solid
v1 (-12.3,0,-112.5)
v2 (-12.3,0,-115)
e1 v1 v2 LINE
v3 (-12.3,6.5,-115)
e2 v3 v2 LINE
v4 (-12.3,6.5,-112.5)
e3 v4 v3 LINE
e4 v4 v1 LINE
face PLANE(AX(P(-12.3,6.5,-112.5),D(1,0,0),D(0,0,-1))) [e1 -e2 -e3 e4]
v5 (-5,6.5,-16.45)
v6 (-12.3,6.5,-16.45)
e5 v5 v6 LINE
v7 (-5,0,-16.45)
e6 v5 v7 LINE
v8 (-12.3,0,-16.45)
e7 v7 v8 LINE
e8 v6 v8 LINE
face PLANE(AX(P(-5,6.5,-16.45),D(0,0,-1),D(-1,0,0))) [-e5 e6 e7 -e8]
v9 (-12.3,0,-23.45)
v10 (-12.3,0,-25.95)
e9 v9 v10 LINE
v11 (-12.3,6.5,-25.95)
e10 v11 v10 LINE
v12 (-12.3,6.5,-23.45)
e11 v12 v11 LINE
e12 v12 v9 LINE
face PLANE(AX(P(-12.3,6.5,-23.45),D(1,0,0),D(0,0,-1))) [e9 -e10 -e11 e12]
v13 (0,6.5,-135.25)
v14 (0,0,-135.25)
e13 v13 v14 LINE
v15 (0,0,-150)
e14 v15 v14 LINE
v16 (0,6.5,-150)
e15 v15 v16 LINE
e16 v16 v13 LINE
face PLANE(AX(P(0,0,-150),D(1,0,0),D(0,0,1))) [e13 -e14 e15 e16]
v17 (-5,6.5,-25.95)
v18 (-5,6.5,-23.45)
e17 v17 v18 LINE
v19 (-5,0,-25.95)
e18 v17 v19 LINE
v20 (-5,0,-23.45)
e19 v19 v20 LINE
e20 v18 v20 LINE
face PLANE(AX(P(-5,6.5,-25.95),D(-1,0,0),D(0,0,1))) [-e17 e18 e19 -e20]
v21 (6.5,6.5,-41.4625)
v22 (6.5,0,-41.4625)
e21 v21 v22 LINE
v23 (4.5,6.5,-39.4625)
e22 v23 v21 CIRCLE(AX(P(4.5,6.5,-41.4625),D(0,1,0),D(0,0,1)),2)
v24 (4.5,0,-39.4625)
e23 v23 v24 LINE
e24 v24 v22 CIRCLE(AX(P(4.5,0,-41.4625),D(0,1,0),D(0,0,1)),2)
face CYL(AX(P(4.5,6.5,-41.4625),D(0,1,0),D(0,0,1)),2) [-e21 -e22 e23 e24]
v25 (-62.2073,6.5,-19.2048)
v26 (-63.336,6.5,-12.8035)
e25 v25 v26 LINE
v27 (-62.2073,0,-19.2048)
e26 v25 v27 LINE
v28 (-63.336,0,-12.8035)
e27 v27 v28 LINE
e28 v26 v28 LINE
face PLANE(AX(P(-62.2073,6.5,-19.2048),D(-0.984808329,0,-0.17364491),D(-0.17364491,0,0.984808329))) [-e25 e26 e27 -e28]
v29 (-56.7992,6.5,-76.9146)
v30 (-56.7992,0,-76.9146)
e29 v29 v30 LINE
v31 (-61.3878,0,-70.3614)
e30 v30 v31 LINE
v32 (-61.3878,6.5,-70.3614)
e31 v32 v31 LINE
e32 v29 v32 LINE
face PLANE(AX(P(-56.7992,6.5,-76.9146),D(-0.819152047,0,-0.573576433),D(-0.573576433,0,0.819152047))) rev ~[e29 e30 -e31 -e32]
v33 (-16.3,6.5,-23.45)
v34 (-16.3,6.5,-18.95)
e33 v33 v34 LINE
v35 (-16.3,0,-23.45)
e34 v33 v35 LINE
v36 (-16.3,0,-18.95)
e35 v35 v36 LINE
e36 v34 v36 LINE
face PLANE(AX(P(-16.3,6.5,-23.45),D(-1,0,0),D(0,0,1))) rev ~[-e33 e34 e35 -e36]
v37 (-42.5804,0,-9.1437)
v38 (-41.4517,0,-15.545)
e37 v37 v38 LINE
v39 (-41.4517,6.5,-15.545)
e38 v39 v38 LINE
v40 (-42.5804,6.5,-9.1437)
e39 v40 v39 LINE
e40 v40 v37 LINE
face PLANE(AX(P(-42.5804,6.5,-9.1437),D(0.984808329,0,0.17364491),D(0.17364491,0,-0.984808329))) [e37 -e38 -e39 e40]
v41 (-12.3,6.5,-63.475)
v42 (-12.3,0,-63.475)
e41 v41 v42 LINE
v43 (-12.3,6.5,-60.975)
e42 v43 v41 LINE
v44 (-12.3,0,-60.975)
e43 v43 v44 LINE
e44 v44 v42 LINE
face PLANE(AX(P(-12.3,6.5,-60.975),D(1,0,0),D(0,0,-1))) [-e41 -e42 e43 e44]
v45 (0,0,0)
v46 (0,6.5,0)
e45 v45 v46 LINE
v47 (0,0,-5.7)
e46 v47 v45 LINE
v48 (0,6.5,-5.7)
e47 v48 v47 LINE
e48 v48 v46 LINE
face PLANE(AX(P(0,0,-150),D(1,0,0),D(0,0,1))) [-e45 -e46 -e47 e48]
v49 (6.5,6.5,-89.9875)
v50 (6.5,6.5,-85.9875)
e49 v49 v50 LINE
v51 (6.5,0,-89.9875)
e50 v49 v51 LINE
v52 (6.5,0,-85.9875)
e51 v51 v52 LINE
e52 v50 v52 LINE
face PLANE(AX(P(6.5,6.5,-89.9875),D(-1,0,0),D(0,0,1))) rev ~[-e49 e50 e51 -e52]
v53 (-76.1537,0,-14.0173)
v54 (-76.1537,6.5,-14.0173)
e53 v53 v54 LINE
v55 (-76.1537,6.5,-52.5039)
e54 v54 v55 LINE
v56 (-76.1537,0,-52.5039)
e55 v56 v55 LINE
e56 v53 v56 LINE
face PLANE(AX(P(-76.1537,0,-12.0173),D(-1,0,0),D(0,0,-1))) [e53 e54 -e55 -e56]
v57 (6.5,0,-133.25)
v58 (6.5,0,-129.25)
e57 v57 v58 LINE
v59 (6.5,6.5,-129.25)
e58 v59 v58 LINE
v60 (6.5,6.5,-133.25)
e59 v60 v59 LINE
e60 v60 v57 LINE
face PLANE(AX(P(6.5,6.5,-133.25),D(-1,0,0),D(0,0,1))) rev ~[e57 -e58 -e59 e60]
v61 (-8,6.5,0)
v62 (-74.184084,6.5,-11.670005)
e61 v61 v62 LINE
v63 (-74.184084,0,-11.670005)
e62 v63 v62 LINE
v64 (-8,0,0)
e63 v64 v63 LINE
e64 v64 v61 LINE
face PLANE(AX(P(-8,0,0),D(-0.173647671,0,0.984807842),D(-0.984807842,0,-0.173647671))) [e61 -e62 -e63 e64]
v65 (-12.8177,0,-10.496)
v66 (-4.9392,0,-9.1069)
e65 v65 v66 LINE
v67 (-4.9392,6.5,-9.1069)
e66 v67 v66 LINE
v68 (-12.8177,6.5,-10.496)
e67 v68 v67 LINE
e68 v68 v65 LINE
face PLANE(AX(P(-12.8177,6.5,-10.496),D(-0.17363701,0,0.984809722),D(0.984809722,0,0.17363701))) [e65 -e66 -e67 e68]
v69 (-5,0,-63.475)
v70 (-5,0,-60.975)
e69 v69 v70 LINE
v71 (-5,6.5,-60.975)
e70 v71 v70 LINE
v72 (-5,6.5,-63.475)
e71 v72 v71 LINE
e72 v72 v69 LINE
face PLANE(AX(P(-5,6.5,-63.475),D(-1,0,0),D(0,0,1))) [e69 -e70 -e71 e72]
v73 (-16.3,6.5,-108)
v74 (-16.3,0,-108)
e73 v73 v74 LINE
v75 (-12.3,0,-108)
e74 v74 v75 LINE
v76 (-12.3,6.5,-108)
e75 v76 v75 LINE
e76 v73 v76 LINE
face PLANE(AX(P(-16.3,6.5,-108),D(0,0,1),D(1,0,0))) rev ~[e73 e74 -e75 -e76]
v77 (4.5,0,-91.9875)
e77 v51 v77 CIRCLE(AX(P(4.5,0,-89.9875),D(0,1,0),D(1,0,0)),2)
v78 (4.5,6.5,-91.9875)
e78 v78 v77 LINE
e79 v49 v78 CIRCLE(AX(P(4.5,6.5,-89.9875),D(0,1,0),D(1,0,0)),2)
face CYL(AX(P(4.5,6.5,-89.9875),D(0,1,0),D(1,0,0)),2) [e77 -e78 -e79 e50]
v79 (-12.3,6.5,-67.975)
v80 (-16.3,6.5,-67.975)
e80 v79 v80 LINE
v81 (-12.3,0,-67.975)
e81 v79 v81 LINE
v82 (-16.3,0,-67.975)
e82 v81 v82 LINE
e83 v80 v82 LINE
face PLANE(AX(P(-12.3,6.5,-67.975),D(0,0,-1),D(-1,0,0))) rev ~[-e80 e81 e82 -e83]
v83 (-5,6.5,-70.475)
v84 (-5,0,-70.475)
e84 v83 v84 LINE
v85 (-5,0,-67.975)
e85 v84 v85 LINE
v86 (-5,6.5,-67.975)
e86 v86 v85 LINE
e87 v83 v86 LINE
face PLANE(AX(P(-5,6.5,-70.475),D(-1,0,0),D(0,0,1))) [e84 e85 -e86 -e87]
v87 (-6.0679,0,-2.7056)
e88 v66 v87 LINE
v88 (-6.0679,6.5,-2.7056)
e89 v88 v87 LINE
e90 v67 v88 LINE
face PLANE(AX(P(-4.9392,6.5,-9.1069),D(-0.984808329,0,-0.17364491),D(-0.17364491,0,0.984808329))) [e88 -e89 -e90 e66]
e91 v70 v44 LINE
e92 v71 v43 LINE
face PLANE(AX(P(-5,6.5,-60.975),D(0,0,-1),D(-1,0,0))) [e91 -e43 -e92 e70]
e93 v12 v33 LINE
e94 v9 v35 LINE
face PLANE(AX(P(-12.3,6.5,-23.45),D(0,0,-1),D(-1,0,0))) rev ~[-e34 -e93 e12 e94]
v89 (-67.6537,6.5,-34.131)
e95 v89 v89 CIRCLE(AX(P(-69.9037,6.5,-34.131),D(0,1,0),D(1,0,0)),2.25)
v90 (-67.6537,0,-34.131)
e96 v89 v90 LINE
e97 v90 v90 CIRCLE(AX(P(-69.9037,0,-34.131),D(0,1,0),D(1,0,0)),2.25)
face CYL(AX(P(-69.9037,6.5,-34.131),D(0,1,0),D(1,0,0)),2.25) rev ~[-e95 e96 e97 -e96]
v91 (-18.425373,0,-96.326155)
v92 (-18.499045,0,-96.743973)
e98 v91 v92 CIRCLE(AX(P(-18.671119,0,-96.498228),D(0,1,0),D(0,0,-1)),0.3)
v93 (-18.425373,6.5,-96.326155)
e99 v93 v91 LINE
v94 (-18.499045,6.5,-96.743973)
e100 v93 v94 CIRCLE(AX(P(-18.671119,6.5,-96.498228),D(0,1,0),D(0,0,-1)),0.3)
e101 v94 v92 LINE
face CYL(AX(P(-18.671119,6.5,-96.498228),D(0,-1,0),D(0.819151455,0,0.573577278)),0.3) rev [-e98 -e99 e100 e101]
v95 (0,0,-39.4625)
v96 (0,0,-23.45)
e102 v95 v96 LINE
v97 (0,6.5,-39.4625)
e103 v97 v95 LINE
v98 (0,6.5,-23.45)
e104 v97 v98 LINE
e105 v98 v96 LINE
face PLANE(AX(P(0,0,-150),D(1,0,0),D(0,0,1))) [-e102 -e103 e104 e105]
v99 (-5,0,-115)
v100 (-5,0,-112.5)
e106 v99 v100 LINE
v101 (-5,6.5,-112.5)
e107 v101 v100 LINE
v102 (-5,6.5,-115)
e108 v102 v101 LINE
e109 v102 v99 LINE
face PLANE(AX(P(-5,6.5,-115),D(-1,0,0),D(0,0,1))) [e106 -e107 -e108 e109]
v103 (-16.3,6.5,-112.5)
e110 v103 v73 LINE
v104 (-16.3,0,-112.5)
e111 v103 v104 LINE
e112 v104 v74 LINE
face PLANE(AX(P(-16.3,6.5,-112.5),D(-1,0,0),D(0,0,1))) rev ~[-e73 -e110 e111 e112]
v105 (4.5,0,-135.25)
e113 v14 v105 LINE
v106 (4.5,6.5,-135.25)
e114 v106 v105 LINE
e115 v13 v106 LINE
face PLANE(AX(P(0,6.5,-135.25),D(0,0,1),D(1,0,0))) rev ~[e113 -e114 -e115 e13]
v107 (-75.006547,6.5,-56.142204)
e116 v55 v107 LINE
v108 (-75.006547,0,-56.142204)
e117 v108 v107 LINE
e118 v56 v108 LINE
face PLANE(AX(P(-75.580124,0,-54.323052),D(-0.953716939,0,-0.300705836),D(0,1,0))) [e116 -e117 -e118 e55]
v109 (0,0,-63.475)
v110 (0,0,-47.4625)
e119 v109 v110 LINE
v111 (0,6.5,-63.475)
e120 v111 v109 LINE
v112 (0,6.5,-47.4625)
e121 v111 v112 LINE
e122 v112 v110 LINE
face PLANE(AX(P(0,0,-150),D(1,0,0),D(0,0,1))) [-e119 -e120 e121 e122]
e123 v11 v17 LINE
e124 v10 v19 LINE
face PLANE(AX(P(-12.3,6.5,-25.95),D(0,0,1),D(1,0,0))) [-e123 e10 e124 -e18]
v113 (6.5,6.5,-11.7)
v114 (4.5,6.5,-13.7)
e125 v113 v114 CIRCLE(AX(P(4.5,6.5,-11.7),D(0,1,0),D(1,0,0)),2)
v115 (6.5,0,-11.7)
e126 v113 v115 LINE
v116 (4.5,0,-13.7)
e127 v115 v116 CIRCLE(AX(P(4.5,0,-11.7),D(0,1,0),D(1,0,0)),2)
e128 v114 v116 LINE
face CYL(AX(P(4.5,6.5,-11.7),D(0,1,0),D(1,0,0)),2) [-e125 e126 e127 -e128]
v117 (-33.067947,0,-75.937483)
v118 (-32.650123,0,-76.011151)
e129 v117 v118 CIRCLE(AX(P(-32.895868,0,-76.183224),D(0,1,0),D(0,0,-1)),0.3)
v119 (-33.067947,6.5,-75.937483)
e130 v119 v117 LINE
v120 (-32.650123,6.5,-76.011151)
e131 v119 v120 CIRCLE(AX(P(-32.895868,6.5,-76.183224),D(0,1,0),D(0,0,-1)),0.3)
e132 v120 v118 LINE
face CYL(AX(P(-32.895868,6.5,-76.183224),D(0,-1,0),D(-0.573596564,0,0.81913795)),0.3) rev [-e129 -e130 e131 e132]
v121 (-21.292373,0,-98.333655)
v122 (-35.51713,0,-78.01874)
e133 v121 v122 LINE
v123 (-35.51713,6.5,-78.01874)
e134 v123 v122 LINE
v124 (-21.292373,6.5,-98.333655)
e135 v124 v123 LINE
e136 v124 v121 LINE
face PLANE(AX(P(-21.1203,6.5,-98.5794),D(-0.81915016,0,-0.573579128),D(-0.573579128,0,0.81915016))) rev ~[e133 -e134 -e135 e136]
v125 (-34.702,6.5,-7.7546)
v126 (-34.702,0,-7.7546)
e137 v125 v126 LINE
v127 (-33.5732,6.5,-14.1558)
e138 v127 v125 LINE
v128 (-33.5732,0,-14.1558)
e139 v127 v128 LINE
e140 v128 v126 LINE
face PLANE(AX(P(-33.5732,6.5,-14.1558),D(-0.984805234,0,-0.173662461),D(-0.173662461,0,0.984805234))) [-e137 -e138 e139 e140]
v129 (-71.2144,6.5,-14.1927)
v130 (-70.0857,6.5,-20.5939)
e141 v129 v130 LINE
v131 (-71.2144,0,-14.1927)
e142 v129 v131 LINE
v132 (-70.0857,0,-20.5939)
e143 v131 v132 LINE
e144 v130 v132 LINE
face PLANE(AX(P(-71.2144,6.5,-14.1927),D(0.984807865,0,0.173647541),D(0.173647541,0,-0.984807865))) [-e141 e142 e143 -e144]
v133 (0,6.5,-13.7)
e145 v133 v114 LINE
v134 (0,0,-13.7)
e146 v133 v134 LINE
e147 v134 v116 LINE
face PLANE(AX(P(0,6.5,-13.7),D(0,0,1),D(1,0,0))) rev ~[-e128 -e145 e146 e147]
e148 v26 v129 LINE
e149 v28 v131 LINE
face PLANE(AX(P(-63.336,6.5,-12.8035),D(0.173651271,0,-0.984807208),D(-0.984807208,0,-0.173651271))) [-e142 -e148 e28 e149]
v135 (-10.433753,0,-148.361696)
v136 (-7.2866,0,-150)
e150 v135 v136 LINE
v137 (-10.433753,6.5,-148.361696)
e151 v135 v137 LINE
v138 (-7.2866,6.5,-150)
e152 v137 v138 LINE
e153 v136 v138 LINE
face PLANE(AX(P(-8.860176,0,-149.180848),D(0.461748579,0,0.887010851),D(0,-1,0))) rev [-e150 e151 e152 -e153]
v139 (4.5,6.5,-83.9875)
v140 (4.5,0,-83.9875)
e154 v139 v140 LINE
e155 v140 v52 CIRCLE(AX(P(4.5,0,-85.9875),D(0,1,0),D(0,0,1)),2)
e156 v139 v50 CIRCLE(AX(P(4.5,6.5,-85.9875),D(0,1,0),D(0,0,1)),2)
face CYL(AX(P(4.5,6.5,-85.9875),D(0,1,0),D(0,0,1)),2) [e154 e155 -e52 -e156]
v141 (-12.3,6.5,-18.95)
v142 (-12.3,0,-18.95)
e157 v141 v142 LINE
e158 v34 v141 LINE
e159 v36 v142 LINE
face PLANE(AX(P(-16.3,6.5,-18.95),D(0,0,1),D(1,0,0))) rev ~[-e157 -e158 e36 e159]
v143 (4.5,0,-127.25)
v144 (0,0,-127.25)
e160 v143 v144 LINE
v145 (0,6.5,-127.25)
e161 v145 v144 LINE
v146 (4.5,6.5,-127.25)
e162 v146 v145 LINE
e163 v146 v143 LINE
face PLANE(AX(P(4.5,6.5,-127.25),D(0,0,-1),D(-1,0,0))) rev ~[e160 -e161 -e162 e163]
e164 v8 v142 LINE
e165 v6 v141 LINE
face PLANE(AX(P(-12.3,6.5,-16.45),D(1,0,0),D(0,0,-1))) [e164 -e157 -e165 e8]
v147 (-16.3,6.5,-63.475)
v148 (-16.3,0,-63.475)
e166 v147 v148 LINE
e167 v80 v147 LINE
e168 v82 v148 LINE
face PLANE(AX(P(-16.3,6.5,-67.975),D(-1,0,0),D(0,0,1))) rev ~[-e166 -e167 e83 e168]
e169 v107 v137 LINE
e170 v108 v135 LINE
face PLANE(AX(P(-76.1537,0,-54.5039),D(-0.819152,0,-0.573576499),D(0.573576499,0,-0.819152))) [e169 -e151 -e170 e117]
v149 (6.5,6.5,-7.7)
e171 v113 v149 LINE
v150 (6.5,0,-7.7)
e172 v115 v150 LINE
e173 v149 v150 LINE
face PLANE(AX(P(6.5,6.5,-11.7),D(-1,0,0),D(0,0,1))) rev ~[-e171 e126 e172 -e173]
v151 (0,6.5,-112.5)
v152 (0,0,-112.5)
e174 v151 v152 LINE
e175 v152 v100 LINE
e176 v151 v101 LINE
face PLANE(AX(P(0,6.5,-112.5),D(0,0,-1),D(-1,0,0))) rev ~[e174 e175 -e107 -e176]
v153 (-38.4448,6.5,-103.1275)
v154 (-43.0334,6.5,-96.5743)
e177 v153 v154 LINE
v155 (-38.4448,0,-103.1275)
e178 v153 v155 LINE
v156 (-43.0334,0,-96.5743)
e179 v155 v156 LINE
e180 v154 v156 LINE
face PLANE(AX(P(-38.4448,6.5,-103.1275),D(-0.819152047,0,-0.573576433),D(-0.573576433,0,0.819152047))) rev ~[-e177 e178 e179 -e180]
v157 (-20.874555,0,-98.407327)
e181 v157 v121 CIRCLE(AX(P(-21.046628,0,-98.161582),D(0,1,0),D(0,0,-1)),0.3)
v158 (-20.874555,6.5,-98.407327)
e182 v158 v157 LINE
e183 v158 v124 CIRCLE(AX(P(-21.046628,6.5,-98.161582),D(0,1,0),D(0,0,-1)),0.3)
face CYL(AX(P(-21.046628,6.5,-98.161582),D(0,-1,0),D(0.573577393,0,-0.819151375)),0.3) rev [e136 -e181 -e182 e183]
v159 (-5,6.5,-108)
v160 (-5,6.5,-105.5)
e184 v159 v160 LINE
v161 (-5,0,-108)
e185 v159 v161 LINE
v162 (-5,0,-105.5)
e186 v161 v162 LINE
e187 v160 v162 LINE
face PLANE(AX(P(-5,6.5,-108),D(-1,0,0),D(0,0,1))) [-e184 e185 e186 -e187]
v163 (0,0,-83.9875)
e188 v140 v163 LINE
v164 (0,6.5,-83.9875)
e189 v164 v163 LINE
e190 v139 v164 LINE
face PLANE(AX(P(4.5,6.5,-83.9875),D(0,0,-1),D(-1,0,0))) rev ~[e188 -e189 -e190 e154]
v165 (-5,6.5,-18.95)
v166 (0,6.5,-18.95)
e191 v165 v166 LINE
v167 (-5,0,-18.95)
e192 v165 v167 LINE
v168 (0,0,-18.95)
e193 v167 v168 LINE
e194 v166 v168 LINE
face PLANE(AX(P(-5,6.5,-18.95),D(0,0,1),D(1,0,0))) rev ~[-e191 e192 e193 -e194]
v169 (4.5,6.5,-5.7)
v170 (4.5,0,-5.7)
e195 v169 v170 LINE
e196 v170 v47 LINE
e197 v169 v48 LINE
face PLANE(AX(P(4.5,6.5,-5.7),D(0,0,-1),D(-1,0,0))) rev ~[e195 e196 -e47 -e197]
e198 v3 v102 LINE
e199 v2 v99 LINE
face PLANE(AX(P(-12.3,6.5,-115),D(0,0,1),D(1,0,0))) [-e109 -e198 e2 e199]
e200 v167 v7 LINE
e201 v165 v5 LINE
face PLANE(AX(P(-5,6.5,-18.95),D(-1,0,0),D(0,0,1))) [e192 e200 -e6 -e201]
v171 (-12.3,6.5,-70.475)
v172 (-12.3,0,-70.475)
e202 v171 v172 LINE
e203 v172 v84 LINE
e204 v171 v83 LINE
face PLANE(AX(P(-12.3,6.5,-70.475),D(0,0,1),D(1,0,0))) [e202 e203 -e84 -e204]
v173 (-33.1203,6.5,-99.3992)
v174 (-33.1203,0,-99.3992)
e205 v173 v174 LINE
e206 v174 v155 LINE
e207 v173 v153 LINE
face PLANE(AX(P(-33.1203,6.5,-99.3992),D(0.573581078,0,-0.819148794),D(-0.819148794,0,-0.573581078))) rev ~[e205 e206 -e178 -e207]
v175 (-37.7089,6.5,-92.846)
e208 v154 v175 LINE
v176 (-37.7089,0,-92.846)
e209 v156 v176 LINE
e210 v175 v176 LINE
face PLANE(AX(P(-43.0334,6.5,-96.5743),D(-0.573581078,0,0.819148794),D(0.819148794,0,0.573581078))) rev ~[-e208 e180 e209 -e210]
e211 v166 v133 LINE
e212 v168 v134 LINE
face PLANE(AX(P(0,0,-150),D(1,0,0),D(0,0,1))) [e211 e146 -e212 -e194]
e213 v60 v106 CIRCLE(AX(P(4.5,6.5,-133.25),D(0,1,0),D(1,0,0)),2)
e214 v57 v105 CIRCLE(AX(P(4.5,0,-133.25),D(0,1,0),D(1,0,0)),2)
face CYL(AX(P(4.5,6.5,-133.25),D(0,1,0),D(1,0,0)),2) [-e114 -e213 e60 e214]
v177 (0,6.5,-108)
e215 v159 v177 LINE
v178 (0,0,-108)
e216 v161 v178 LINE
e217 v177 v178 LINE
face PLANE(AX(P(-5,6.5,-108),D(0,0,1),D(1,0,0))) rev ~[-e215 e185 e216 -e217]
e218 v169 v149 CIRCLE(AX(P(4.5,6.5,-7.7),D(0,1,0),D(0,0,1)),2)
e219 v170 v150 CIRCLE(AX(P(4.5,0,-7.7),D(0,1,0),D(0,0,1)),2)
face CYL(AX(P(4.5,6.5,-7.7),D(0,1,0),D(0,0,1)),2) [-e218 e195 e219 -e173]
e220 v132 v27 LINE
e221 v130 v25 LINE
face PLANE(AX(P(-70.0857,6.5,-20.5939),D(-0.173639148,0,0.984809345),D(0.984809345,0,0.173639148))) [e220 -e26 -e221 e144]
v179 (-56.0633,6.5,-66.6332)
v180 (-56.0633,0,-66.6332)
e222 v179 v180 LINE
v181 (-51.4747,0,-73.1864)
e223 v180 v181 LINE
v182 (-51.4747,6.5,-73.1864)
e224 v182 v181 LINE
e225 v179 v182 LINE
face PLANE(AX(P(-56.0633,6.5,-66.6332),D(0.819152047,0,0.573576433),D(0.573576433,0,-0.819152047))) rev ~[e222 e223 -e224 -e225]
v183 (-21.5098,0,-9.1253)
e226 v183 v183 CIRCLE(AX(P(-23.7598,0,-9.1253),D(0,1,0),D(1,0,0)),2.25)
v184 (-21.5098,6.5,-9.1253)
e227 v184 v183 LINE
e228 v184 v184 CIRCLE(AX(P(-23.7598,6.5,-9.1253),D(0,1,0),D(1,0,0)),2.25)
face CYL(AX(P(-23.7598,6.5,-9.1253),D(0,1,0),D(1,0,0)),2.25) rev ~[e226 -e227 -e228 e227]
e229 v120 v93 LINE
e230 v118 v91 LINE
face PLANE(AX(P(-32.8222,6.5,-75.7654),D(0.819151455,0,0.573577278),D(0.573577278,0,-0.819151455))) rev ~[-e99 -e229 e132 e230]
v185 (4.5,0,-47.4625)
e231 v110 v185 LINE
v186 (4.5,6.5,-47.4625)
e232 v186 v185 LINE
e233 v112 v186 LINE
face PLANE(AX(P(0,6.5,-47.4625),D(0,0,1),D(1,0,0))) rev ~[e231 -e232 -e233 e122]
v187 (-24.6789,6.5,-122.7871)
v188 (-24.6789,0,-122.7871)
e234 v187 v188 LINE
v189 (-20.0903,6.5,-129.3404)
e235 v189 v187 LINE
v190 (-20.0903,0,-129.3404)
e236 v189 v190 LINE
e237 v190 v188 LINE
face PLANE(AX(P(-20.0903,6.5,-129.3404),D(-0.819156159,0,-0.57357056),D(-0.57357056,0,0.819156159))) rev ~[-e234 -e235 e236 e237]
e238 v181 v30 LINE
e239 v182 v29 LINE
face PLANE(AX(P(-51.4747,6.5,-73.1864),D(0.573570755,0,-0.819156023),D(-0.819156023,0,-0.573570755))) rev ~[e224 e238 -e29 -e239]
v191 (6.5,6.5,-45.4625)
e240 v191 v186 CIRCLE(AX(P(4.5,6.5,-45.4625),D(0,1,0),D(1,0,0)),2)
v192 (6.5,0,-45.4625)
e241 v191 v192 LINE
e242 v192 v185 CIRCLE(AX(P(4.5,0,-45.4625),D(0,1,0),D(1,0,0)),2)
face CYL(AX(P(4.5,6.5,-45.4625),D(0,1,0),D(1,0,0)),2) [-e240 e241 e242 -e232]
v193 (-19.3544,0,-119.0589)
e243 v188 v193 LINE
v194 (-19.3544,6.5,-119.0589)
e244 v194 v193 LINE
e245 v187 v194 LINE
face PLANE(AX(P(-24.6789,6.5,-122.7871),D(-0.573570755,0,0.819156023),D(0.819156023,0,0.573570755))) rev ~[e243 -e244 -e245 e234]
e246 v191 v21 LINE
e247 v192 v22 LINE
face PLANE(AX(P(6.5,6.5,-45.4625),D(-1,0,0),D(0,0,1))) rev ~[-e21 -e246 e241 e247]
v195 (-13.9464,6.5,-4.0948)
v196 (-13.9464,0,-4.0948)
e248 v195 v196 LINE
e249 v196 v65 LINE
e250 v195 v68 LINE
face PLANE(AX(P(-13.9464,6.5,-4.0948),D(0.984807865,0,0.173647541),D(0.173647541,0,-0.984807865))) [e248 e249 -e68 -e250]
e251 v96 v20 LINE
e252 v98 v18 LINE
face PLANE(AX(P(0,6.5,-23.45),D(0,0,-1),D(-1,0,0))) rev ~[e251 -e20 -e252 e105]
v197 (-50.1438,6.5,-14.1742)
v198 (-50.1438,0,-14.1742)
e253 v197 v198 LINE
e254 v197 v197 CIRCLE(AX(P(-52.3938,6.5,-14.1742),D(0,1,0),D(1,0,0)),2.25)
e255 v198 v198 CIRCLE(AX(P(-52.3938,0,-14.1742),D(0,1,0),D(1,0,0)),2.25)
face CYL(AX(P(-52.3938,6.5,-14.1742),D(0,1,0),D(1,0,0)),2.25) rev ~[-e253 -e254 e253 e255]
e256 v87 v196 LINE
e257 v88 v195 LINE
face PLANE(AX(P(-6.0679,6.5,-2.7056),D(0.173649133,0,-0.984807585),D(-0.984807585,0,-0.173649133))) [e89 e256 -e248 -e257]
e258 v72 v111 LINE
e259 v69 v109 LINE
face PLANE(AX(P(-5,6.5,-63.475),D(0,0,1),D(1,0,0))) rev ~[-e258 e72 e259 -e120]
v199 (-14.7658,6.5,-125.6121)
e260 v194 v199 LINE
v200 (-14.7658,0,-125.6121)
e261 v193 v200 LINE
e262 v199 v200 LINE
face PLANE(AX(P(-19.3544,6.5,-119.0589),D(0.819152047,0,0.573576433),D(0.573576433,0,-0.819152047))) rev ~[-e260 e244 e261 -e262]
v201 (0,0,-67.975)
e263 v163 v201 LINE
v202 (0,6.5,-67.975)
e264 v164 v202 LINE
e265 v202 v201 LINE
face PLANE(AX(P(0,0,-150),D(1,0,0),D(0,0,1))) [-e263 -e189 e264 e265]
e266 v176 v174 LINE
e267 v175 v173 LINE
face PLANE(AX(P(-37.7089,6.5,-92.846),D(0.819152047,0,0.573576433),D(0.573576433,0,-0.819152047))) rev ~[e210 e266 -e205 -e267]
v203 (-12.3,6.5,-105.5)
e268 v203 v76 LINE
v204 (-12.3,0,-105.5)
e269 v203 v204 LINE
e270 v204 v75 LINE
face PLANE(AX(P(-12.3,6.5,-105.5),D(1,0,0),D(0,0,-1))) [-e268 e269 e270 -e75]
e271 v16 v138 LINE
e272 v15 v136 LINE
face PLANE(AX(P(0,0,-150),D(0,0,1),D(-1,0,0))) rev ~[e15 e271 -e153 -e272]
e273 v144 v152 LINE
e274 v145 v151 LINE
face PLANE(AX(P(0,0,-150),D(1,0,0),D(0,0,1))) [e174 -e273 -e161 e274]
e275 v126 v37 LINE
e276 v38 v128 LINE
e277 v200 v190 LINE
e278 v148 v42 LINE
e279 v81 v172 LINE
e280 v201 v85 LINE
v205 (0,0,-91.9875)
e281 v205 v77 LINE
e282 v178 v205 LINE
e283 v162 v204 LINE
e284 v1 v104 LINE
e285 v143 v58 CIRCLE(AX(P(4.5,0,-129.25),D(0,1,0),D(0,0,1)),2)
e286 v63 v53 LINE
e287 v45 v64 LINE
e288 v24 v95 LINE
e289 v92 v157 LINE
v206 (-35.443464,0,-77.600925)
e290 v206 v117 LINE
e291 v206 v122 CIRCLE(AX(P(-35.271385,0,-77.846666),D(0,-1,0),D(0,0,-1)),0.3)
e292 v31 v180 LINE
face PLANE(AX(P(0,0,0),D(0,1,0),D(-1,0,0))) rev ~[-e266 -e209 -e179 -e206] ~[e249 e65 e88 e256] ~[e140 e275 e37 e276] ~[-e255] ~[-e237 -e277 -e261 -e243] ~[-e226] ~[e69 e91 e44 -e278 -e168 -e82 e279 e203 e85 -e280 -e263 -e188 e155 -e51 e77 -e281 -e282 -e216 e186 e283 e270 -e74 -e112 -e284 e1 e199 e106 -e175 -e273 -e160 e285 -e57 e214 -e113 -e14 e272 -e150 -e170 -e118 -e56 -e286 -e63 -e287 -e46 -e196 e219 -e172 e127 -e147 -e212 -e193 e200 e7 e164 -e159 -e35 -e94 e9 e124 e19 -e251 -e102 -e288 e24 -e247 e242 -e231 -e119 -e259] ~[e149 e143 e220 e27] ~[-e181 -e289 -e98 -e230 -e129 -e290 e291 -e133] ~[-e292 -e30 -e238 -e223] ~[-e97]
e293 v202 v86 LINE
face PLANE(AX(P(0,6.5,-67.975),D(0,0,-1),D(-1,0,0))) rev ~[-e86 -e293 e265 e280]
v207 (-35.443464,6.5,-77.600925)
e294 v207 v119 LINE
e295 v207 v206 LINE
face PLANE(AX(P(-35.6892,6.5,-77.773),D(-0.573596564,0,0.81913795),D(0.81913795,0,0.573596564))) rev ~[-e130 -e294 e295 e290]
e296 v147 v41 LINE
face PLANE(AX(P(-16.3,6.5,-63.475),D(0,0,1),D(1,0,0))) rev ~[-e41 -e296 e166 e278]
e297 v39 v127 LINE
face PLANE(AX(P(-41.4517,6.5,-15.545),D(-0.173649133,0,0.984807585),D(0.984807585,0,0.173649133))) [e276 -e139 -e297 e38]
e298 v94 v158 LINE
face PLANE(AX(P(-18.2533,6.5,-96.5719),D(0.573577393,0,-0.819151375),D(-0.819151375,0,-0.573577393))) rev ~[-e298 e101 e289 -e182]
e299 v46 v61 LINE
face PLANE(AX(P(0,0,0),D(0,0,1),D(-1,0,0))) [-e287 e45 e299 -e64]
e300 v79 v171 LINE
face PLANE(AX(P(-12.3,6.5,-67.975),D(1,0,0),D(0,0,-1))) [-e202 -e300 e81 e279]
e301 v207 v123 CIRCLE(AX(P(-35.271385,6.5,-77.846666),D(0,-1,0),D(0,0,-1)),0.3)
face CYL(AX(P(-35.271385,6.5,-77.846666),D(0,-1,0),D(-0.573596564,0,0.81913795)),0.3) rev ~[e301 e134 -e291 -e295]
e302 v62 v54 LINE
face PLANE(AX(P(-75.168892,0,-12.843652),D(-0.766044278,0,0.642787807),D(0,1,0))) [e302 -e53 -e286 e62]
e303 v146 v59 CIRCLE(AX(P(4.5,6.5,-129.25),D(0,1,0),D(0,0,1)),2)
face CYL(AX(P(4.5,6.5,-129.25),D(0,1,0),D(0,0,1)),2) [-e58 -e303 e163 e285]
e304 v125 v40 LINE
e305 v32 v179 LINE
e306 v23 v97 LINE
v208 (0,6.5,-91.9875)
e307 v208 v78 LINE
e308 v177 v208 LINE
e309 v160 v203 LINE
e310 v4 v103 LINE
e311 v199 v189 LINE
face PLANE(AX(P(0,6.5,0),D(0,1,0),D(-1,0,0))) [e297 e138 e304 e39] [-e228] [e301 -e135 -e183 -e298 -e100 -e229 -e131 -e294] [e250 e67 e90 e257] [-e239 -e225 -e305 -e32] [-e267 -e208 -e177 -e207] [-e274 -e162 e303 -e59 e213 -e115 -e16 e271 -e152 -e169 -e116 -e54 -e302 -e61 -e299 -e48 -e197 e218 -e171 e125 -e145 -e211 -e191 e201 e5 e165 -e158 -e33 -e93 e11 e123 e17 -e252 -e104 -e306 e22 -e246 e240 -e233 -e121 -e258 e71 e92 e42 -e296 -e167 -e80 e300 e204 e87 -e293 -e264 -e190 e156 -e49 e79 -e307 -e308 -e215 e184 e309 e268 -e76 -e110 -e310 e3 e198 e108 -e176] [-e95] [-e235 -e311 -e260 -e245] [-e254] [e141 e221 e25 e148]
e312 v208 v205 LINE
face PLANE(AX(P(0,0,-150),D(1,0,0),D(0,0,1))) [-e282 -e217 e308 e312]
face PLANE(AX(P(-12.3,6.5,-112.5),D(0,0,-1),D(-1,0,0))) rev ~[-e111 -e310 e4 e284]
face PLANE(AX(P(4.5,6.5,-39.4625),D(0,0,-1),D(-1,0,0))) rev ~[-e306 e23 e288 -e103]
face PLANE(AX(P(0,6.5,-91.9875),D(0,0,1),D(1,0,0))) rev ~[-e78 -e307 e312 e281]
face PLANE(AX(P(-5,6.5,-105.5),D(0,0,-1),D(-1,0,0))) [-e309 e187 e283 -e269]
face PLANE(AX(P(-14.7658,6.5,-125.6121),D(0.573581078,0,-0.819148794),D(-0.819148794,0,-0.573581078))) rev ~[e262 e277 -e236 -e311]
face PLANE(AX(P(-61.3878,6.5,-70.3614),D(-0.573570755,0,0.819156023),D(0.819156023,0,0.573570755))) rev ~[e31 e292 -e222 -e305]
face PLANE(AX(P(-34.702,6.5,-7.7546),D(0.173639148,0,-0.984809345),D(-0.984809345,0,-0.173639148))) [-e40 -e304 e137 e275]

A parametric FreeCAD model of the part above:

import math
import FreeCAD as App
import Part
import Sketcher
from FreeCAD import Vector
Q = App.Units.Quantity


def edges_at(feature, points):
    """Names of the edges that pass closest to the given points."""
    edges = feature.Shape.Edges
    near = lambda p: min(range(len(edges)), key=lambda i: edges[i].distToShape(Part.Vertex(*p))[0])
    return sorted({f"Edge{near(p) + 1}" for p in points})

doc = App.newDocument("Part")
params = doc.addObject("Spreadsheet::Sheet", "Params")
for row, (alias, value) in enumerate([
    ("sketch1_width", "8 mm"),
    ("sketch1_height", "150 mm"),
    ("pad1_length", "6.5 mm"),
    ("chamfer_size", "2 mm"),
    ("sketch2_diameter", "4.5 mm"),
    ("sketch2_width", "5 mm"),
    ("sketch2_width2", "4 mm"),
    ("sketch2_length", "8 mm"),
    ("sketch2_width3", "7.3 mm"),
    ("sketch3_radius", "2 mm"),
    ("sketch3_height", "8 mm"),
    ("pad2_length", "6.5 mm"),
    ("sketch4_length", "3.5 mm"),
    ("sketch4_length2", "25.4 mm"),
    ("fillet_radius", "0.3 mm"),
], start=1):
    params.set(f"A{row}", alias)
    params.set(f"B{row}", "=" + value)
    params.setAlias(f"B{row}", alias)

body = doc.addObject("PartDesign::Body", "Body")

sketch1 = body.newObject("Sketcher::SketchObject", "Sketch")
sketch1.AttachmentSupport = (doc.getObject("XZ_Plane"), [""])
sketch1.MapMode = "FlatFace"
sketch1.addGeometry([
    Part.LineSegment(Vector(-76.1537, -12.0173, 0), Vector(-8, 0, 0)),
    Part.LineSegment(Vector(-8, 0, 0), Vector(0, 0, 0)),
    Part.LineSegment(Vector(0, 0, 0), Vector(0, -150, 0)),
    Part.LineSegment(Vector(0, -150, 0), Vector(-9.2866, -150, 0)),
    Part.LineSegment(Vector(-9.2866, -150, 0), Vector(-76.1537, -54.5039, 0)),
    Part.LineSegment(Vector(-76.1537, -54.5039, 0), Vector(-76.1537, -12.0173, 0)),
], False)
sketch1.addConstraint([
    Sketcher.Constraint("Coincident", 0, 2, 1, 1),
    Sketcher.Constraint("Coincident", 1, 2, 2, 1),
    Sketcher.Constraint("Coincident", 2, 2, 3, 1),
    Sketcher.Constraint("Coincident", 3, 2, 4, 1),
    Sketcher.Constraint("Coincident", 4, 2, 5, 1),
    Sketcher.Constraint("Coincident", 5, 2, 0, 1),
    Sketcher.Constraint("Horizontal", 1),
    Sketcher.Constraint("Vertical", 2),
    Sketcher.Constraint("Horizontal", 3),
    Sketcher.Constraint("Vertical", 5),
    Sketcher.Constraint("Coincident", 1, 2, -1, 1),
    Sketcher.Constraint("DistanceX", 1, 1, 1, 2, 8.0),
    Sketcher.Constraint("DistanceY", 2, 2, 2, 1, 150.0),
    Sketcher.Constraint("Angle", 0, Q("10 deg")),
    Sketcher.Constraint("Angle", 4, Q("125 deg")),
    Sketcher.Constraint("Distance", 0, 69.205),
    Sketcher.Constraint("DistanceX", 3, 2, 3, 1, 9.2866),
])
sketch1.setExpression("Constraints[11]", "Params.sketch1_width")
sketch1.setExpression("Constraints[12]", "Params.sketch1_height")
pad1 = body.newObject("PartDesign::Pad", "Pad")
pad1.Profile = sketch1
pad1.setExpression("Length", "Params.pad1_length")
pad1.Reversed = True
doc.recompute()

chamfer = body.newObject("PartDesign::Chamfer", "Chamfer")
chamfer.Base = (pad1, edges_at(pad1, [(-76.154, 3.25, -54.504), (-76.154, 3.25, -12.017), (-9.287, 3.25, -150)]))
chamfer.setExpression("Size", "Params.chamfer_size")

sketch2 = body.newObject("Sketcher::SketchObject", "Sketch001")
sketch2.AttachmentSupport = (doc.getObject("XZ_Plane"), [""])
sketch2.MapMode = "FlatFace"
sketch2.AttachmentOffset = App.Placement(Vector(0, 0, -6.5), App.Rotation())
sketch2.addGeometry([
    Part.LineSegment(Vector(-5, -18.95, 0), Vector(0, -18.95, 0)),
    Part.LineSegment(Vector(0, -18.95, 0), Vector(0, -23.45, 0)),
    Part.LineSegment(Vector(0, -23.45, 0), Vector(-5, -23.45, 0)),
    Part.LineSegment(Vector(-5, -23.45, 0), Vector(-5, -25.95, 0)),
    Part.LineSegment(Vector(-5, -25.95, 0), Vector(-12.3, -25.95, 0)),
    Part.LineSegment(Vector(-12.3, -25.95, 0), Vector(-12.3, -23.45, 0)),
    Part.LineSegment(Vector(-12.3, -23.45, 0), Vector(-16.3, -23.45, 0)),
    Part.LineSegment(Vector(-16.3, -23.45, 0), Vector(-16.3, -18.95, 0)),
    Part.LineSegment(Vector(-16.3, -18.95, 0), Vector(-12.3, -18.95, 0)),
    Part.LineSegment(Vector(-12.3, -18.95, 0), Vector(-12.3, -16.45, 0)),
    Part.LineSegment(Vector(-12.3, -16.45, 0), Vector(-5, -16.45, 0)),
    Part.LineSegment(Vector(-5, -16.45, 0), Vector(-5, -18.95, 0)),
    Part.LineSegment(Vector(-5, -108, 0), Vector(0, -108, 0)),
    Part.LineSegment(Vector(0, -108, 0), Vector(0, -112.5, 0)),
    Part.LineSegment(Vector(0, -112.5, 0), Vector(-5, -112.5, 0)),
    Part.LineSegment(Vector(-5, -112.5, 0), Vector(-5, -115, 0)),
    Part.LineSegment(Vector(-5, -115, 0), Vector(-12.3, -115, 0)),
    Part.LineSegment(Vector(-12.3, -115, 0), Vector(-12.3, -112.5, 0)),
    Part.LineSegment(Vector(-12.3, -112.5, 0), Vector(-16.3, -112.5, 0)),
    Part.LineSegment(Vector(-16.3, -112.5, 0), Vector(-16.3, -108, 0)),
    Part.LineSegment(Vector(-16.3, -108, 0), Vector(-12.3, -108, 0)),
    Part.LineSegment(Vector(-12.3, -108, 0), Vector(-12.3, -105.5, 0)),
    Part.LineSegment(Vector(-12.3, -105.5, 0), Vector(-5, -105.5, 0)),
    Part.LineSegment(Vector(-5, -105.5, 0), Vector(-5, -108, 0)),
    Part.LineSegment(Vector(-5, -63.475, 0), Vector(0, -63.475, 0)),
    Part.LineSegment(Vector(0, -63.475, 0), Vector(0, -67.975, 0)),
    Part.LineSegment(Vector(0, -67.975, 0), Vector(-5, -67.975, 0)),
    Part.LineSegment(Vector(-5, -67.975, 0), Vector(-5, -70.475, 0)),
    Part.LineSegment(Vector(-5, -70.475, 0), Vector(-12.3, -70.475, 0)),
    Part.LineSegment(Vector(-12.3, -70.475, 0), Vector(-12.3, -67.975, 0)),
    Part.LineSegment(Vector(-12.3, -67.975, 0), Vector(-16.3, -67.975, 0)),
    Part.LineSegment(Vector(-16.3, -67.975, 0), Vector(-16.3, -63.475, 0)),
    Part.LineSegment(Vector(-16.3, -63.475, 0), Vector(-12.3, -63.475, 0)),
    Part.LineSegment(Vector(-12.3, -63.475, 0), Vector(-12.3, -60.975, 0)),
    Part.LineSegment(Vector(-12.3, -60.975, 0), Vector(-5, -60.975, 0)),
    Part.LineSegment(Vector(-5, -60.975, 0), Vector(-5, -63.475, 0)),
    Part.Circle(Vector(-69.9037, -34.131, 0), Vector(0, 0, 1), 2.25),
    Part.LineSegment(Vector(-61.3878, -70.3614, 0), Vector(-56.0633, -66.6332, 0)),
    Part.LineSegment(Vector(-56.0633, -66.6332, 0), Vector(-51.4747, -73.1864, 0)),
    Part.LineSegment(Vector(-51.4747, -73.1864, 0), Vector(-56.7992, -76.9146, 0)),
    Part.LineSegment(Vector(-56.7992, -76.9146, 0), Vector(-61.3878, -70.3614, 0)),
    Part.LineSegment(Vector(-43.0334, -96.5743, 0), Vector(-37.7089, -92.846, 0)),
    Part.LineSegment(Vector(-37.7089, -92.846, 0), Vector(-33.1203, -99.3992, 0)),
    Part.LineSegment(Vector(-33.1203, -99.3992, 0), Vector(-38.4448, -103.1275, 0)),
    Part.LineSegment(Vector(-38.4448, -103.1275, 0), Vector(-43.0334, -96.5743, 0)),
    Part.LineSegment(Vector(-24.6789, -122.7871, 0), Vector(-19.3544, -119.0589, 0)),
    Part.LineSegment(Vector(-19.3544, -119.0589, 0), Vector(-14.7658, -125.6121, 0)),
    Part.LineSegment(Vector(-14.7658, -125.6121, 0), Vector(-20.0903, -129.3404, 0)),
    Part.LineSegment(Vector(-20.0903, -129.3404, 0), Vector(-24.6789, -122.7871, 0)),
    Part.LineSegment(Vector(-62.2073, -19.2048, 0), Vector(-70.0857, -20.5939, 0)),
    Part.LineSegment(Vector(-70.0857, -20.5939, 0), Vector(-71.2144, -14.1927, 0)),
    Part.LineSegment(Vector(-71.2144, -14.1927, 0), Vector(-63.336, -12.8035, 0)),
    Part.LineSegment(Vector(-63.336, -12.8035, 0), Vector(-62.2073, -19.2048, 0)),
    Part.LineSegment(Vector(-33.5732, -14.1558, 0), Vector(-41.4517, -15.545, 0)),
    Part.LineSegment(Vector(-41.4517, -15.545, 0), Vector(-42.5804, -9.1437, 0)),
    Part.LineSegment(Vector(-42.5804, -9.1437, 0), Vector(-34.702, -7.7546, 0)),
    Part.LineSegment(Vector(-34.702, -7.7546, 0), Vector(-33.5732, -14.1558, 0)),
    Part.LineSegment(Vector(-4.9392, -9.1069, 0), Vector(-12.8177, -10.496, 0)),
    Part.LineSegment(Vector(-12.8177, -10.496, 0), Vector(-13.9464, -4.0948, 0)),
    Part.LineSegment(Vector(-13.9464, -4.0948, 0), Vector(-6.0679, -2.7056, 0)),
    Part.LineSegment(Vector(-6.0679, -2.7056, 0), Vector(-4.9392, -9.1069, 0)),
    Part.Circle(Vector(-52.3938, -14.1742, 0), Vector(0, 0, 1), 2.25),
    Part.Circle(Vector(-23.7598, -9.1253, 0), Vector(0, 0, 1), 2.25),
], False)
sketch2.addConstraint([
    Sketcher.Constraint("Coincident", 0, 2, 1, 1),
    Sketcher.Constraint("Coincident", 1, 2, 2, 1),
    Sketcher.Constraint("Coincident", 2, 2, 3, 1),
    Sketcher.Constraint("Coincident", 3, 2, 4, 1),
    Sketcher.Constraint("Coincident", 4, 2, 5, 1),
    Sketcher.Constraint("Coincident", 5, 2, 6, 1),
    Sketcher.Constraint("Coincident", 6, 2, 7, 1),
    Sketcher.Constraint("Coincident", 7, 2, 8, 1),
    Sketcher.Constraint("Coincident", 8, 2, 9, 1),
    Sketcher.Constraint("Coincident", 9, 2, 10, 1),
    Sketcher.Constraint("Coincident", 10, 2, 11, 1),
    Sketcher.Constraint("Coincident", 11, 2, 0, 1),
    Sketcher.Constraint("Coincident", 12, 2, 13, 1),
    Sketcher.Constraint("Coincident", 13, 2, 14, 1),
    Sketcher.Constraint("Coincident", 14, 2, 15, 1),
    Sketcher.Constraint("Coincident", 15, 2, 16, 1),
    Sketcher.Constraint("Coincident", 16, 2, 17, 1),
    Sketcher.Constraint("Coincident", 17, 2, 18, 1),
    Sketcher.Constraint("Coincident", 18, 2, 19, 1),
    Sketcher.Constraint("Coincident", 19, 2, 20, 1),
    Sketcher.Constraint("Coincident", 20, 2, 21, 1),
    Sketcher.Constraint("Coincident", 21, 2, 22, 1),
    Sketcher.Constraint("Coincident", 22, 2, 23, 1),
    Sketcher.Constraint("Coincident", 23, 2, 12, 1),
    Sketcher.Constraint("Coincident", 24, 2, 25, 1),
    Sketcher.Constraint("Coincident", 25, 2, 26, 1),
    Sketcher.Constraint("Coincident", 26, 2, 27, 1),
    Sketcher.Constraint("Coincident", 27, 2, 28, 1),
    Sketcher.Constraint("Coincident", 28, 2, 29, 1),
    Sketcher.Constraint("Coincident", 29, 2, 30, 1),
    Sketcher.Constraint("Coincident", 30, 2, 31, 1),
    Sketcher.Constraint("Coincident", 31, 2, 32, 1),
    Sketcher.Constraint("Coincident", 32, 2, 33, 1),
    Sketcher.Constraint("Coincident", 33, 2, 34, 1),
    Sketcher.Constraint("Coincident", 34, 2, 35, 1),
    Sketcher.Constraint("Coincident", 35, 2, 24, 1),
    Sketcher.Constraint("Coincident", 37, 2, 38, 1),
    Sketcher.Constraint("Coincident", 38, 2, 39, 1),
    Sketcher.Constraint("Coincident", 39, 2, 40, 1),
    Sketcher.Constraint("Coincident", 40, 2, 37, 1),
    Sketcher.Constraint("Coincident", 41, 2, 42, 1),
    Sketcher.Constraint("Coincident", 42, 2, 43, 1),
    Sketcher.Constraint("Coincident", 43, 2, 44, 1),
    Sketcher.Constraint("Coincident", 44, 2, 41, 1),
    Sketcher.Constraint("Coincident", 45, 2, 46, 1),
    Sketcher.Constraint("Coincident", 46, 2, 47, 1),
    Sketcher.Constraint("Coincident", 47, 2, 48, 1),
    Sketcher.Constraint("Coincident", 48, 2, 45, 1),
    Sketcher.Constraint("Coincident", 49, 2, 50, 1),
    Sketcher.Constraint("Coincident", 50, 2, 51, 1),
    Sketcher.Constraint("Coincident", 51, 2, 52, 1),
    Sketcher.Constraint("Coincident", 52, 2, 49, 1),
    Sketcher.Constraint("Coincident", 53, 2, 54, 1),
    Sketcher.Constraint("Coincident", 54, 2, 55, 1),
    Sketcher.Constraint("Coincident", 55, 2, 56, 1),
    Sketcher.Constraint("Coincident", 56, 2, 53, 1),
    Sketcher.Constraint("Coincident", 57, 2, 58, 1),
    Sketcher.Constraint("Coincident", 58, 2, 59, 1),
    Sketcher.Constraint("Coincident", 59, 2, 60, 1),
    Sketcher.Constraint("Coincident", 60, 2, 57, 1),
    Sketcher.Constraint("Horizontal", 0),
    Sketcher.Constraint("Vertical", 1),
    Sketcher.Constraint("Horizontal", 2),
    Sketcher.Constraint("Vertical", 3),
    Sketcher.Constraint("Horizontal", 4),
    Sketcher.Constraint("Vertical", 5),
    Sketcher.Constraint("Horizontal", 6),
    Sketcher.Constraint("Vertical", 7),
    Sketcher.Constraint("Horizontal", 8),
    Sketcher.Constraint("Vertical", 9),
    Sketcher.Constraint("Horizontal", 10),
    Sketcher.Constraint("Vertical", 11),
    Sketcher.Constraint("Horizontal", 12),
    Sketcher.Constraint("Vertical", 13),
    Sketcher.Constraint("Horizontal", 14),
    Sketcher.Constraint("Vertical", 15),
    Sketcher.Constraint("Horizontal", 16),
    Sketcher.Constraint("Vertical", 17),
    Sketcher.Constraint("Horizontal", 18),
    Sketcher.Constraint("Vertical", 19),
    Sketcher.Constraint("Horizontal", 20),
    Sketcher.Constraint("Vertical", 21),
    Sketcher.Constraint("Horizontal", 22),
    Sketcher.Constraint("Vertical", 23),
    Sketcher.Constraint("Horizontal", 24),
    Sketcher.Constraint("Vertical", 25),
    Sketcher.Constraint("Horizontal", 26),
    Sketcher.Constraint("Vertical", 27),
    Sketcher.Constraint("Horizontal", 28),
    Sketcher.Constraint("Vertical", 29),
    Sketcher.Constraint("Horizontal", 30),
    Sketcher.Constraint("Vertical", 31),
    Sketcher.Constraint("Horizontal", 32),
    Sketcher.Constraint("Vertical", 33),
    Sketcher.Constraint("Horizontal", 34),
    Sketcher.Constraint("Vertical", 35),
    Sketcher.Constraint("Equal", 36, 61),
    Sketcher.Constraint("Equal", 61, 62),
    Sketcher.Constraint("PointOnObject", 0, 2, -2),
    Sketcher.Constraint("PointOnObject", 12, 2, -2),
    Sketcher.Constraint("PointOnObject", 24, 2, -2),
    Sketcher.Constraint("Perpendicular", 37, 38),
    Sketcher.Constraint("Perpendicular", 38, 39),
    Sketcher.Constraint("Perpendicular", 39, 40),
    Sketcher.Constraint("Perpendicular", 40, 41),
    Sketcher.Constraint("Perpendicular", 41, 42),
    Sketcher.Constraint("Perpendicular", 42, 43),
    Sketcher.Constraint("Perpendicular", 43, 44),
    Sketcher.Constraint("Perpendicular", 44, 45),
    Sketcher.Constraint("Perpendicular", 45, 46),
    Sketcher.Constraint("Perpendicular", 46, 47),
    Sketcher.Constraint("Perpendicular", 47, 48),
    Sketcher.Constraint("Perpendicular", 49, 50),
    Sketcher.Constraint("Perpendicular", 50, 51),
    Sketcher.Constraint("Perpendicular", 51, 52),
    Sketcher.Constraint("Perpendicular", 52, 53),
    Sketcher.Constraint("Perpendicular", 53, 54),
    Sketcher.Constraint("Perpendicular", 54, 55),
    Sketcher.Constraint("Perpendicular", 55, 56),
    Sketcher.Constraint("Perpendicular", 56, 57),
    Sketcher.Constraint("Perpendicular", 57, 58),
    Sketcher.Constraint("Perpendicular", 58, 59),
    Sketcher.Constraint("Perpendicular", 59, 60),
    Sketcher.Constraint("Horizontal", 2, 2, 5, 2),
    Sketcher.Constraint("Horizontal", 0, 2, 7, 2),
    Sketcher.Constraint("Horizontal", 14, 2, 17, 2),
    Sketcher.Constraint("Horizontal", 12, 2, 19, 2),
    Sketcher.Constraint("Horizontal", 26, 2, 29, 2),
    Sketcher.Constraint("Horizontal", 24, 2, 31, 2),
    Sketcher.Constraint("Vertical", 5, 2, 8, 2),
    Sketcher.Constraint("Vertical", 3, 2, 10, 2),
    Sketcher.Constraint("Vertical", 11, 2, 14, 2),
    Sketcher.Constraint("Vertical", 9, 2, 16, 2),
    Sketcher.Constraint("Vertical", 7, 2, 18, 2),
    Sketcher.Constraint("Vertical", 17, 2, 20, 2),
    Sketcher.Constraint("Vertical", 15, 2, 22, 2),
    Sketcher.Constraint("Vertical", 23, 2, 26, 2),
    Sketcher.Constraint("Vertical", 21, 2, 28, 2),
    Sketcher.Constraint("Vertical", 19, 2, 30, 2),
    Sketcher.Constraint("Vertical", 29, 2, 32, 2),
    Sketcher.Constraint("Vertical", 27, 2, 34, 2),
    Sketcher.Constraint("Equal", 5, 9),
    Sketcher.Constraint("Equal", 7, 13),
    Sketcher.Constraint("Equal", 11, 15),
    Sketcher.Constraint("Equal", 17, 21),
    Sketcher.Constraint("Equal", 19, 25),
    Sketcher.Constraint("Equal", 23, 27),
    Sketcher.Constraint("Equal", 29, 33),
    Sketcher.Constraint("Equal", 39, 41),
    Sketcher.Constraint("Equal", 40, 42),
    Sketcher.Constraint("Equal", 43, 45),
    Sketcher.Constraint("Equal", 44, 46),
    Sketcher.Constraint("Equal", 48, 49),
    Sketcher.Constraint("Equal", 47, 50),
    Sketcher.Constraint("Equal", 51, 53),
    Sketcher.Constraint("Equal", 52, 54),
    Sketcher.Constraint("Equal", 55, 57),
    Sketcher.Constraint("Equal", 56, 58),
    Sketcher.Constraint("Diameter", 36, 4.5),
    Sketcher.Constraint("DistanceX", 0, 1, 0, 2, 5.0),
    Sketcher.Constraint("DistanceX", 6, 2, 6, 1, 4.0),
    Sketcher.Constraint("Angle", 37, Q("34.9996 deg")),
    Sketcher.Constraint("Distance", 38, 8.0),
    Sketcher.Constraint("DistanceX", 4, 2, 4, 1, 7.3),
    Sketcher.Constraint("DistanceY", 1, 2, 1, 1, 4.5),
    Sketcher.Constraint("DistanceY", 3, 2, 3, 1, 2.5),
    Sketcher.Constraint("Distance", 37, 6.5),
    Sketcher.Constraint("Angle", 49, Q("-170.0005 deg")),
    Sketcher.Constraint("DistanceY", 12, 2, -1, 1, 108.0),
    Sketcher.Constraint("DistanceY", 0, 2, -1, 1, 18.95),
    Sketcher.Constraint("DistanceY", 36, 3, -1, 1, 34.131),
    Sketcher.Constraint("DistanceY", 24, 2, -1, 1, 63.475),
    Sketcher.Constraint("DistanceX", 41, 2, -1, 1, 37.709),
    Sketcher.Constraint("DistanceY", 41, 2, -1, 1, 92.846),
    Sketcher.Constraint("DistanceY", 45, 2, -1, 1, 119.059),
    Sketcher.Constraint("DistanceX", 48, 2, -1, 1, 24.679),
    Sketcher.Constraint("DistanceY", 49, 2, -1, 1, 20.594),
    Sketcher.Constraint("DistanceX", 51, 2, -1, 1, 63.336),
    Sketcher.Constraint("DistanceY", 53, 2, -1, 1, 15.545),
    Sketcher.Constraint("DistanceX", 55, 2, -1, 1, 34.702),
    Sketcher.Constraint("DistanceY", 57, 2, -1, 1, 10.496),
    Sketcher.Constraint("DistanceX", 59, 2, -1, 1, 6.068),
    Sketcher.Constraint("DistanceX", 36, 3, -1, 1, 69.9037),
    Sketcher.Constraint("DistanceX", 61, 3, -1, 1, 52.3938),
    Sketcher.Constraint("DistanceY", 61, 3, -1, 1, 14.1742),
    Sketcher.Constraint("DistanceX", 62, 3, -1, 1, 23.7598),
    Sketcher.Constraint("DistanceY", 62, 3, -1, 1, 9.1253),
    Sketcher.Constraint("DistanceX", 37, 2, -1, 1, 56.0633),
    Sketcher.Constraint("DistanceY", 37, 2, -1, 1, 66.6332),
])
sketch2.setExpression("Constraints[158]", "Params.sketch2_diameter")
sketch2.setExpression("Constraints[159]", "Params.sketch2_width")
sketch2.setExpression("Constraints[160]", "Params.sketch2_width2")
sketch2.setExpression("Constraints[162]", "Params.sketch2_length")
sketch2.setExpression("Constraints[163]", "Params.sketch2_width3")
pocket1 = body.newObject("PartDesign::Pocket", "Pocket")
pocket1.Profile = sketch2
pocket1.Type = "ThroughAll"
pocket1.Reversed = True

sketch3 = body.newObject("Sketcher::SketchObject", "Sketch002")
sketch3.AttachmentSupport = (doc.getObject("XZ_Plane"), [""])
sketch3.MapMode = "FlatFace"
sketch3.AttachmentOffset = App.Placement(Vector(0, 0, -6.5), App.Rotation())
sketch3.addGeometry([
    Part.LineSegment(Vector(0, -91.9875, 0), Vector(0, -83.9875, 0)),
    Part.LineSegment(Vector(0, -83.9875, 0), Vector(4.5, -83.9875, 0)),
    Part.ArcOfCircle(Part.Circle(Vector(4.5, -85.9875, 0), Vector(0, 0, 1), 2), math.radians(0), math.radians(90)),
    Part.LineSegment(Vector(6.5, -85.9875, 0), Vector(6.5, -89.9875, 0)),
    Part.ArcOfCircle(Part.Circle(Vector(4.5, -89.9875, 0), Vector(0, 0, 1), 2), math.radians(-90), math.radians(0)),
    Part.LineSegment(Vector(4.5, -91.9875, 0), Vector(0, -91.9875, 0)),
    Part.LineSegment(Vector(0, -135.25, 0), Vector(0, -127.25, 0)),
    Part.LineSegment(Vector(0, -127.25, 0), Vector(4.5, -127.25, 0)),
    Part.ArcOfCircle(Part.Circle(Vector(4.5, -129.25, 0), Vector(0, 0, 1), 2), math.radians(0), math.radians(90)),
    Part.LineSegment(Vector(6.5, -129.25, 0), Vector(6.5, -133.25, 0)),
    Part.ArcOfCircle(Part.Circle(Vector(4.5, -133.25, 0), Vector(0, 0, 1), 2), math.radians(-90), math.radians(0)),
    Part.LineSegment(Vector(4.5, -135.25, 0), Vector(0, -135.25, 0)),
    Part.LineSegment(Vector(0, -13.7, 0), Vector(0, -5.7, 0)),
    Part.LineSegment(Vector(0, -5.7, 0), Vector(4.5, -5.7, 0)),
    Part.ArcOfCircle(Part.Circle(Vector(4.5, -7.7, 0), Vector(0, 0, 1), 2), math.radians(0), math.radians(90)),
    Part.LineSegment(Vector(6.5, -7.7, 0), Vector(6.5, -11.7, 0)),
    Part.ArcOfCircle(Part.Circle(Vector(4.5, -11.7, 0), Vector(0, 0, 1), 2), math.radians(-90), math.radians(0)),
    Part.LineSegment(Vector(4.5, -13.7, 0), Vector(0, -13.7, 0)),
    Part.LineSegment(Vector(0, -47.4625, 0), Vector(0, -39.4625, 0)),
    Part.LineSegment(Vector(0, -39.4625, 0), Vector(4.5, -39.4625, 0)),
    Part.ArcOfCircle(Part.Circle(Vector(4.5, -41.4625, 0), Vector(0, 0, 1), 2), math.radians(0), math.radians(90)),
    Part.LineSegment(Vector(6.5, -41.4625, 0), Vector(6.5, -45.4625, 0)),
    Part.ArcOfCircle(Part.Circle(Vector(4.5, -45.4625, 0), Vector(0, 0, 1), 2), math.radians(-90), math.radians(0)),
    Part.LineSegment(Vector(4.5, -47.4625, 0), Vector(0, -47.4625, 0)),
], False)
sketch3.addConstraint([
    Sketcher.Constraint("Coincident", 0, 2, 1, 1),
    Sketcher.Constraint("Tangent", 1, 2, 2, 2),
    Sketcher.Constraint("Tangent", 2, 1, 3, 1),
    Sketcher.Constraint("Tangent", 3, 2, 4, 2),
    Sketcher.Constraint("Tangent", 4, 1, 5, 1),
    Sketcher.Constraint("Coincident", 5, 2, 0, 1),
    Sketcher.Constraint("Coincident", 6, 2, 7, 1),
    Sketcher.Constraint("Tangent", 7, 2, 8, 2),
    Sketcher.Constraint("Tangent", 8, 1, 9, 1),
    Sketcher.Constraint("Tangent", 9, 2, 10, 2),
    Sketcher.Constraint("Tangent", 10, 1, 11, 1),
    Sketcher.Constraint("Coincident", 11, 2, 6, 1),
    Sketcher.Constraint("Coincident", 12, 2, 13, 1),
    Sketcher.Constraint("Tangent", 13, 2, 14, 2),
    Sketcher.Constraint("Tangent", 14, 1, 15, 1),
    Sketcher.Constraint("Tangent", 15, 2, 16, 2),
    Sketcher.Constraint("Tangent", 16, 1, 17, 1),
    Sketcher.Constraint("Coincident", 17, 2, 12, 1),
    Sketcher.Constraint("Coincident", 18, 2, 19, 1),
    Sketcher.Constraint("Tangent", 19, 2, 20, 2),
    Sketcher.Constraint("Tangent", 20, 1, 21, 1),
    Sketcher.Constraint("Tangent", 21, 2, 22, 2),
    Sketcher.Constraint("Tangent", 22, 1, 23, 1),
    Sketcher.Constraint("Coincident", 23, 2, 18, 1),
    Sketcher.Constraint("Vertical", 0),
    Sketcher.Constraint("Horizontal", 1),
    Sketcher.Constraint("Vertical", 3),
    Sketcher.Constraint("Horizontal", 5),
    Sketcher.Constraint("Vertical", 6),
    Sketcher.Constraint("Horizontal", 7),
    Sketcher.Constraint("Vertical", 9),
    Sketcher.Constraint("Horizontal", 11),
    Sketcher.Constraint("Vertical", 12),
    Sketcher.Constraint("Horizontal", 13),
    Sketcher.Constraint("Vertical", 15),
    Sketcher.Constraint("Horizontal", 17),
    Sketcher.Constraint("Vertical", 18),
    Sketcher.Constraint("Horizontal", 19),
    Sketcher.Constraint("Vertical", 21),
    Sketcher.Constraint("Horizontal", 23),
    Sketcher.Constraint("Equal", 2, 4),
    Sketcher.Constraint("Equal", 4, 8),
    Sketcher.Constraint("Equal", 8, 10),
    Sketcher.Constraint("Equal", 10, 14),
    Sketcher.Constraint("Equal", 14, 16),
    Sketcher.Constraint("Equal", 16, 20),
    Sketcher.Constraint("Equal", 20, 22),
    Sketcher.Constraint("PointOnObject", 0, 2, -2),
    Sketcher.Constraint("PointOnObject", 6, 2, -2),
    Sketcher.Constraint("PointOnObject", 12, 2, -2),
    Sketcher.Constraint("PointOnObject", 18, 2, -2),
    Sketcher.Constraint("Vertical", 4, 3, 8, 3),
    Sketcher.Constraint("Vertical", 10, 3, 14, 3),
    Sketcher.Constraint("Vertical", 16, 3, 20, 3),
    Sketcher.Constraint("Equal", 0, 6),
    Sketcher.Constraint("Equal", 6, 12),
    Sketcher.Constraint("Equal", 12, 18),
    Sketcher.Constraint("Radius", 2, 2.0),
    Sketcher.Constraint("DistanceY", 0, 1, 0, 2, 8.0),
    Sketcher.Constraint("DistanceX", -1, 1, 2, 1, 6.5),
    Sketcher.Constraint("DistanceY", 14, 3, -1, 1, 7.7),
    Sketcher.Constraint("DistanceY", 8, 3, -1, 1, 129.25),
    Sketcher.Constraint("DistanceY", 2, 3, 20, 3, 44.525),
    Sketcher.Constraint("DistanceY", 2, 3, -1, 1, 85.9875),
])
sketch3.setExpression("Constraints[57]", "Params.sketch3_radius")
sketch3.setExpression("Constraints[58]", "Params.sketch3_height")
pad2 = body.newObject("PartDesign::Pad", "Pad001")
pad2.Profile = sketch3
pad2.setExpression("Length", "Params.pad2_length")

sketch4 = body.newObject("Sketcher::SketchObject", "Sketch003")
sketch4.AttachmentSupport = (doc.getObject("XZ_Plane"), [""])
sketch4.MapMode = "FlatFace"
sketch4.AttachmentOffset = App.Placement(Vector(0, 0, -6.5), App.Rotation())
sketch4.addGeometry([
    Part.LineSegment(Vector(-35.6892, -77.773, 0), Vector(-32.8222, -75.7654, 0)),
    Part.LineSegment(Vector(-32.8222, -75.7654, 0), Vector(-18.2533, -96.5719, 0)),
    Part.LineSegment(Vector(-18.2533, -96.5719, 0), Vector(-21.1203, -98.5794, 0)),
    Part.LineSegment(Vector(-21.1203, -98.5794, 0), Vector(-35.6892, -77.773, 0)),
], False)
sketch4.addConstraint([
    Sketcher.Constraint("Coincident", 0, 2, 1, 1),
    Sketcher.Constraint("Coincident", 1, 2, 2, 1),
    Sketcher.Constraint("Coincident", 2, 2, 3, 1),
    Sketcher.Constraint("Coincident", 3, 2, 0, 1),
    Sketcher.Constraint("Perpendicular", 0, 1),
    Sketcher.Constraint("Perpendicular", 1, 2),
    Sketcher.Constraint("Perpendicular", 2, 3),
    Sketcher.Constraint("Angle", 1, Q("-55 deg")),
    Sketcher.Constraint("Distance", 0, 3.5),
    Sketcher.Constraint("Distance", 1, 25.4),
    Sketcher.Constraint("DistanceY", 1, 2, -1, 1, 96.572),
    Sketcher.Constraint("DistanceX", 0, 2, -1, 1, 32.8222),
])
sketch4.setExpression("Constraints[8]", "Params.sketch4_length")
sketch4.setExpression("Constraints[9]", "Params.sketch4_length2")
pocket2 = body.newObject("PartDesign::Pocket", "Pocket001")
pocket2.Profile = sketch4
pocket2.Type = "ThroughAll"
pocket2.Reversed = True
doc.recompute()

fillet = body.newObject("PartDesign::Fillet", "Fillet")
fillet.Base = (pocket2, edges_at(pocket2, [
    (-32.822, 3.25, -75.765),
    (-18.253, 3.25, -96.572),
    (-21.12, 3.25, -98.579),
    (-35.689, 3.25, -77.773),
]))
fillet.setExpression("Radius", "Params.fillet_radius")

doc.recompute()
